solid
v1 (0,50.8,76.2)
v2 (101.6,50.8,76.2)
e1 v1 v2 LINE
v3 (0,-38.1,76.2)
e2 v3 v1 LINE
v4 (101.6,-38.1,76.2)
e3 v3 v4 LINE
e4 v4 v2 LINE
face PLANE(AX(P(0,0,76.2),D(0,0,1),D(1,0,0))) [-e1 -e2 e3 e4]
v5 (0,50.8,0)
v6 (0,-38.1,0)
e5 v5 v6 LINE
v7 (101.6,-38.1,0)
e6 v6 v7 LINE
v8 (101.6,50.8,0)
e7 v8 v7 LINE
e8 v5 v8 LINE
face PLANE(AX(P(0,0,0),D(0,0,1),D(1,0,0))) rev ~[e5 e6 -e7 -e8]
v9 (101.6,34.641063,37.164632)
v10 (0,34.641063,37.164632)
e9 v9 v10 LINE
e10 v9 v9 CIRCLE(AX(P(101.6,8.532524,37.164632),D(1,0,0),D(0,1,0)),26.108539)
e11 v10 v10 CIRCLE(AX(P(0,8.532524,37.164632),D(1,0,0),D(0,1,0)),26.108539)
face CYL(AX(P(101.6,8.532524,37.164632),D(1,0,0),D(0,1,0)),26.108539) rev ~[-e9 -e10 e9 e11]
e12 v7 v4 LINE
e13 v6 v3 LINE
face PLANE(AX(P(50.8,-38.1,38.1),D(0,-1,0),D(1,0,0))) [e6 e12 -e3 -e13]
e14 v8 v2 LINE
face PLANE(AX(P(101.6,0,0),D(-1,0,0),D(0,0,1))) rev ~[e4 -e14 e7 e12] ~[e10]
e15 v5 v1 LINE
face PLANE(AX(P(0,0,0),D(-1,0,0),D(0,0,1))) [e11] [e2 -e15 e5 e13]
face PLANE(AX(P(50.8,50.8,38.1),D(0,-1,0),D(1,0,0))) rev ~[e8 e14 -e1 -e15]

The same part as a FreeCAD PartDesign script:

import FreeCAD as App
import Part
import Sketcher
from FreeCAD import Vector
Q = App.Units.Quantity

doc = App.newDocument("Part")
params = doc.addObject("Spreadsheet::Sheet", "Params")
for row, (alias, value) in enumerate([
    ("sketch1_width", "4 in"),
    ("sketch1_height", "3 in"),
    ("pad1_length", "2 in"),
    ("sketch2_width", "4 in"),
    ("sketch2_height", "3 in"),
    ("pad2_length", "1.5 in"),
    ("pocket1_length", "4 in"),
], start=1):
    params.set(f"A{row}", alias)
    params.set(f"B{row}", "=" + value)
    params.setAlias(f"B{row}", alias)

body = doc.addObject("PartDesign::Body", "Body")

sketch1 = body.newObject("Sketcher::SketchObject", "Sketch")
sketch1.AttachmentSupport = (doc.getObject("XZ_Plane"), [""])
sketch1.MapMode = "FlatFace"
sketch1.addGeometry(Part.LineSegment(Vector(0, 76.2, 0), Vector(0, 0, 0)), False)
sketch1.addGeometry(Part.LineSegment(Vector(0, 0, 0), Vector(101.6, 0, 0)), False)
sketch1.addGeometry(Part.LineSegment(Vector(101.6, 0, 0), Vector(101.6, 76.2, 0)), False)
sketch1.addGeometry(Part.LineSegment(Vector(101.6, 76.2, 0), Vector(0, 76.2, 0)), False)
sketch1.addConstraint(Sketcher.Constraint("Coincident", 0, 2, 1, 1))
sketch1.addConstraint(Sketcher.Constraint("Coincident", 1, 2, 2, 1))
sketch1.addConstraint(Sketcher.Constraint("Coincident", 2, 2, 3, 1))
sketch1.addConstraint(Sketcher.Constraint("Coincident", 3, 2, 0, 1))
sketch1.addConstraint(Sketcher.Constraint("Vertical", 0))
sketch1.addConstraint(Sketcher.Constraint("Horizontal", 1))
sketch1.addConstraint(Sketcher.Constraint("Vertical", 2))
sketch1.addConstraint(Sketcher.Constraint("Horizontal", 3))
sketch1.addConstraint(Sketcher.Constraint("Coincident", 0, 2, -1, 1))
sketch1.addConstraint(Sketcher.Constraint("DistanceX", 1, 1, 1, 2, Q("4 in")))
sketch1.addConstraint(Sketcher.Constraint("DistanceY", 0, 2, 0, 1, Q("3 in")))
sketch1.setExpression("Constraints[9]", "Params.sketch1_width")
sketch1.setExpression("Constraints[10]", "Params.sketch1_height")
pad1 = body.newObject("PartDesign::Pad", "Pad")
pad1.Profile = sketch1
pad1.setExpression("Length", "Params.pad1_length")
pad1.Reversed = True

sketch2 = body.newObject("Sketcher::SketchObject", "Sketch001")
sketch2.AttachmentSupport = (doc.getObject("XZ_Plane"), [""])
sketch2.MapMode = "FlatFace"
sketch2.addGeometry(Part.LineSegment(Vector(0, 76.2, 0), Vector(0, 0, 0)), False)
sketch2.addGeometry(Part.LineSegment(Vector(0, 0, 0), Vector(101.6, 0, 0)), False)
sketch2.addGeometry(Part.LineSegment(Vector(101.6, 0, 0), Vector(101.6, 76.2, 0)), False)
sketch2.addGeometry(Part.LineSegment(Vector(101.6, 76.2, 0), Vector(0, 76.2, 0)), False)
sketch2.addConstraint(Sketcher.Constraint("Coincident", 0, 2, 1, 1))
sketch2.addConstraint(Sketcher.Constraint("Coincident", 1, 2, 2, 1))
sketch2.addConstraint(Sketcher.Constraint("Coincident", 2, 2, 3, 1))
sketch2.addConstraint(Sketcher.Constraint("Coincident", 3, 2, 0, 1))
sketch2.addConstraint(Sketcher.Constraint("Vertical", 0))
sketch2.addConstraint(Sketcher.Constraint("Horizontal", 1))
sketch2.addConstraint(Sketcher.Constraint("Vertical", 2))
sketch2.addConstraint(Sketcher.Constraint("Horizontal", 3))
sketch2.addConstraint(Sketcher.Constraint("Coincident", 0, 2, -1, 1))
sketch2.addConstraint(Sketcher.Constraint("DistanceX", 1, 1, 1, 2, Q("4 in")))
sketch2.addConstraint(Sketcher.Constraint("DistanceY", 0, 2, 0, 1, Q("3 in")))
sketch2.setExpression("Constraints[9]", "Params.sketch2_width")
sketch2.setExpression("Constraints[10]", "Params.sketch2_height")
pad2 = body.newObject("PartDesign::Pad", "Pad001")
pad2.Profile = sketch2
pad2.setExpression("Length", "Params.pad2_length")

sketch3 = body.newObject("Sketcher::SketchObject", "Sketch002")
sketch3.AttachmentSupport = (doc.getObject("YZ_Plane"), [""])
sketch3.MapMode = "FlatFace"
sketch3.AttachmentOffset = App.Placement(Vector(0, 0, 4 * 25.4), App.Rotation())
sketch3.addGeometry(Part.Circle(Vector(8.532524, 37.164632, 0), Vector(0, 0, 1), 26.108539), False)
sketch3.addConstraint(Sketcher.Constraint("Diameter", 0, 52.217078))
sketch3.addConstraint(Sketcher.Constraint("DistanceY", -1, 1, 0, 3, 37.164632))
sketch3.addConstraint(Sketcher.Constraint("DistanceX", -1, 1, 0, 3, 8.532524))
pocket1 = body.newObject("PartDesign::Pocket", "Pocket")
pocket1.Profile = sketch3
pocket1.setExpression("Length", "Params.pocket1_length")

doc.recompute()
